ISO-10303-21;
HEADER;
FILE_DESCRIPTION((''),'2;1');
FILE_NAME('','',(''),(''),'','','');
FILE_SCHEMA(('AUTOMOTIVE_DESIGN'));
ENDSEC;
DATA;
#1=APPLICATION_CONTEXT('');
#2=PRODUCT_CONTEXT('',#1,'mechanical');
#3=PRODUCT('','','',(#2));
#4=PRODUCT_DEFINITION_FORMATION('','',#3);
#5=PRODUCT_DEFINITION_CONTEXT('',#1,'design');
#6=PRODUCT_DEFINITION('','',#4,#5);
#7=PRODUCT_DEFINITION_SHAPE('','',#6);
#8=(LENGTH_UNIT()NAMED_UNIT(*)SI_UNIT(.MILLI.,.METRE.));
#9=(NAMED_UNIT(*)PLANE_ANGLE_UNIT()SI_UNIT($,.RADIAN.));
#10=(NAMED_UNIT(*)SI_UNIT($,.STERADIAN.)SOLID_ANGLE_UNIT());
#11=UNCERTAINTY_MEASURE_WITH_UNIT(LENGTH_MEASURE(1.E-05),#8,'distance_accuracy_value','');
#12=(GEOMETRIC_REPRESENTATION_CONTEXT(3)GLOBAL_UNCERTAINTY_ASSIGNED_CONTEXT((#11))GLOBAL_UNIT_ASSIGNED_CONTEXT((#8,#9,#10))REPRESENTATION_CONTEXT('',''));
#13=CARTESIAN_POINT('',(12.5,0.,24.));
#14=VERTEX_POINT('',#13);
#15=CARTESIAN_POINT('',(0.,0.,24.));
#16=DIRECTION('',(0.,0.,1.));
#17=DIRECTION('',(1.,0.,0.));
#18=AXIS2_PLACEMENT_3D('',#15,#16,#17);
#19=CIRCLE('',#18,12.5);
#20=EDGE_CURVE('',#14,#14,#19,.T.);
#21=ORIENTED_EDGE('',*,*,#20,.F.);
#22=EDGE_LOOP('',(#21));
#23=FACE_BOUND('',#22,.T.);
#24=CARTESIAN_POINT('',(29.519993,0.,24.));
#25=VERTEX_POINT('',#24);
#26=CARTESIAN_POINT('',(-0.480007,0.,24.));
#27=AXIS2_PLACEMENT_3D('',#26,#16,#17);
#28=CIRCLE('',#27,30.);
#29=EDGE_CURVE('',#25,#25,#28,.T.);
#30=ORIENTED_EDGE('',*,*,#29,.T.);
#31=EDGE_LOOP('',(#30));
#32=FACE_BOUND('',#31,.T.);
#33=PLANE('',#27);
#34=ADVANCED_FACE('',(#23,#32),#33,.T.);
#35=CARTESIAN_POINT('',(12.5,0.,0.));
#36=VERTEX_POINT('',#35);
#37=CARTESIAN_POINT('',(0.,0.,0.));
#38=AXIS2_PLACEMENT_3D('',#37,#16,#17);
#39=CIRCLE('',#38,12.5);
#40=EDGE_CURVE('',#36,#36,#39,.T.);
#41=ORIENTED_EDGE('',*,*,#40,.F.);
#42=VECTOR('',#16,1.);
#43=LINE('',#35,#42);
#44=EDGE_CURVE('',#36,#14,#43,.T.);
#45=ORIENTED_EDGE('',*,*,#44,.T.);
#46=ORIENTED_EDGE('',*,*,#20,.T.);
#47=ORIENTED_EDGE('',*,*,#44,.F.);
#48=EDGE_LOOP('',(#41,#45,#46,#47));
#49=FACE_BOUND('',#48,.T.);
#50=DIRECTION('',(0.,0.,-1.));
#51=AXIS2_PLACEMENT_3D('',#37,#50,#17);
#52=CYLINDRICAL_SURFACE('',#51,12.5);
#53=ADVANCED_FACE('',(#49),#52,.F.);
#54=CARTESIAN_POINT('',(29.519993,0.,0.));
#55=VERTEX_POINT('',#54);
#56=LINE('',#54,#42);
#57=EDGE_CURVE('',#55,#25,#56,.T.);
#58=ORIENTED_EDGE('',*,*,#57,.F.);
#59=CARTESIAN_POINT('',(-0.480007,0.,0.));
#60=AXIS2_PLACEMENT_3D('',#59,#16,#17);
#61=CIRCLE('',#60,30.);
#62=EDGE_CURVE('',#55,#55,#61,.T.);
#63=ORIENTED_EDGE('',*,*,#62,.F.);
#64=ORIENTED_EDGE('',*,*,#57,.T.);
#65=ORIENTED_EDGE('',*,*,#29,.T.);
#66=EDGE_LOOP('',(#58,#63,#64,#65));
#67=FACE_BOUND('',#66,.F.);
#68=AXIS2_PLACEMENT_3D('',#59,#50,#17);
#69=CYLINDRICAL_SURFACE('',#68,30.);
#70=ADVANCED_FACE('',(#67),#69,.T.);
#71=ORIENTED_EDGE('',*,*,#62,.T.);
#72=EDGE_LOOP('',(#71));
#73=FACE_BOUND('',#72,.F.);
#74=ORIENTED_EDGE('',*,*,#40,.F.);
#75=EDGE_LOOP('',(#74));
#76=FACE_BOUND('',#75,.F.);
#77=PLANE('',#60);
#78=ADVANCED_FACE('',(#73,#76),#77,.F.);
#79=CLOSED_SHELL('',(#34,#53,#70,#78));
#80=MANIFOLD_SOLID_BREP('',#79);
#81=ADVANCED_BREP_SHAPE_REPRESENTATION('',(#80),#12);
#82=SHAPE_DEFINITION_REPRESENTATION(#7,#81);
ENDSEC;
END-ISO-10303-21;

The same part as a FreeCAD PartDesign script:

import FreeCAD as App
import Part
import Sketcher
from FreeCAD import Vector

doc = App.newDocument("Part")
body = doc.addObject("PartDesign::Body", "Body")

sketch1 = body.newObject("Sketcher::SketchObject", "Sketch")
sketch1.AttachmentSupport = (doc.getObject("XY_Plane"), [""])
sketch1.MapMode = "FlatFace"
sketch1.addGeometry(Part.Circle(Vector(0, 0, 0), Vector(0, 0, 1), 30), False)
sketch1.addGeometry(Part.Circle(Vector(0, 0, 0), Vector(0, 0, 1), 12), False)
sketch1.addConstraint(Sketcher.Constraint("Coincident", 1, 3, -1, 1))
sketch1.addConstraint(Sketcher.Constraint("PointOnObject", 0, 3, -1))
sketch1.addConstraint(Sketcher.Constraint("Diameter", 0, 60.0))
sketch1.addConstraint(Sketcher.Constraint("Diameter", 1, 25.0))
sketch1.addConstraint(Sketcher.Constraint("DistanceX", 0, 3, -1, 1, 0.480007))
pad1 = body.newObject("PartDesign::Pad", "Pad")
pad1.Profile = sketch1
pad1.Length = 24

doc.recompute()
